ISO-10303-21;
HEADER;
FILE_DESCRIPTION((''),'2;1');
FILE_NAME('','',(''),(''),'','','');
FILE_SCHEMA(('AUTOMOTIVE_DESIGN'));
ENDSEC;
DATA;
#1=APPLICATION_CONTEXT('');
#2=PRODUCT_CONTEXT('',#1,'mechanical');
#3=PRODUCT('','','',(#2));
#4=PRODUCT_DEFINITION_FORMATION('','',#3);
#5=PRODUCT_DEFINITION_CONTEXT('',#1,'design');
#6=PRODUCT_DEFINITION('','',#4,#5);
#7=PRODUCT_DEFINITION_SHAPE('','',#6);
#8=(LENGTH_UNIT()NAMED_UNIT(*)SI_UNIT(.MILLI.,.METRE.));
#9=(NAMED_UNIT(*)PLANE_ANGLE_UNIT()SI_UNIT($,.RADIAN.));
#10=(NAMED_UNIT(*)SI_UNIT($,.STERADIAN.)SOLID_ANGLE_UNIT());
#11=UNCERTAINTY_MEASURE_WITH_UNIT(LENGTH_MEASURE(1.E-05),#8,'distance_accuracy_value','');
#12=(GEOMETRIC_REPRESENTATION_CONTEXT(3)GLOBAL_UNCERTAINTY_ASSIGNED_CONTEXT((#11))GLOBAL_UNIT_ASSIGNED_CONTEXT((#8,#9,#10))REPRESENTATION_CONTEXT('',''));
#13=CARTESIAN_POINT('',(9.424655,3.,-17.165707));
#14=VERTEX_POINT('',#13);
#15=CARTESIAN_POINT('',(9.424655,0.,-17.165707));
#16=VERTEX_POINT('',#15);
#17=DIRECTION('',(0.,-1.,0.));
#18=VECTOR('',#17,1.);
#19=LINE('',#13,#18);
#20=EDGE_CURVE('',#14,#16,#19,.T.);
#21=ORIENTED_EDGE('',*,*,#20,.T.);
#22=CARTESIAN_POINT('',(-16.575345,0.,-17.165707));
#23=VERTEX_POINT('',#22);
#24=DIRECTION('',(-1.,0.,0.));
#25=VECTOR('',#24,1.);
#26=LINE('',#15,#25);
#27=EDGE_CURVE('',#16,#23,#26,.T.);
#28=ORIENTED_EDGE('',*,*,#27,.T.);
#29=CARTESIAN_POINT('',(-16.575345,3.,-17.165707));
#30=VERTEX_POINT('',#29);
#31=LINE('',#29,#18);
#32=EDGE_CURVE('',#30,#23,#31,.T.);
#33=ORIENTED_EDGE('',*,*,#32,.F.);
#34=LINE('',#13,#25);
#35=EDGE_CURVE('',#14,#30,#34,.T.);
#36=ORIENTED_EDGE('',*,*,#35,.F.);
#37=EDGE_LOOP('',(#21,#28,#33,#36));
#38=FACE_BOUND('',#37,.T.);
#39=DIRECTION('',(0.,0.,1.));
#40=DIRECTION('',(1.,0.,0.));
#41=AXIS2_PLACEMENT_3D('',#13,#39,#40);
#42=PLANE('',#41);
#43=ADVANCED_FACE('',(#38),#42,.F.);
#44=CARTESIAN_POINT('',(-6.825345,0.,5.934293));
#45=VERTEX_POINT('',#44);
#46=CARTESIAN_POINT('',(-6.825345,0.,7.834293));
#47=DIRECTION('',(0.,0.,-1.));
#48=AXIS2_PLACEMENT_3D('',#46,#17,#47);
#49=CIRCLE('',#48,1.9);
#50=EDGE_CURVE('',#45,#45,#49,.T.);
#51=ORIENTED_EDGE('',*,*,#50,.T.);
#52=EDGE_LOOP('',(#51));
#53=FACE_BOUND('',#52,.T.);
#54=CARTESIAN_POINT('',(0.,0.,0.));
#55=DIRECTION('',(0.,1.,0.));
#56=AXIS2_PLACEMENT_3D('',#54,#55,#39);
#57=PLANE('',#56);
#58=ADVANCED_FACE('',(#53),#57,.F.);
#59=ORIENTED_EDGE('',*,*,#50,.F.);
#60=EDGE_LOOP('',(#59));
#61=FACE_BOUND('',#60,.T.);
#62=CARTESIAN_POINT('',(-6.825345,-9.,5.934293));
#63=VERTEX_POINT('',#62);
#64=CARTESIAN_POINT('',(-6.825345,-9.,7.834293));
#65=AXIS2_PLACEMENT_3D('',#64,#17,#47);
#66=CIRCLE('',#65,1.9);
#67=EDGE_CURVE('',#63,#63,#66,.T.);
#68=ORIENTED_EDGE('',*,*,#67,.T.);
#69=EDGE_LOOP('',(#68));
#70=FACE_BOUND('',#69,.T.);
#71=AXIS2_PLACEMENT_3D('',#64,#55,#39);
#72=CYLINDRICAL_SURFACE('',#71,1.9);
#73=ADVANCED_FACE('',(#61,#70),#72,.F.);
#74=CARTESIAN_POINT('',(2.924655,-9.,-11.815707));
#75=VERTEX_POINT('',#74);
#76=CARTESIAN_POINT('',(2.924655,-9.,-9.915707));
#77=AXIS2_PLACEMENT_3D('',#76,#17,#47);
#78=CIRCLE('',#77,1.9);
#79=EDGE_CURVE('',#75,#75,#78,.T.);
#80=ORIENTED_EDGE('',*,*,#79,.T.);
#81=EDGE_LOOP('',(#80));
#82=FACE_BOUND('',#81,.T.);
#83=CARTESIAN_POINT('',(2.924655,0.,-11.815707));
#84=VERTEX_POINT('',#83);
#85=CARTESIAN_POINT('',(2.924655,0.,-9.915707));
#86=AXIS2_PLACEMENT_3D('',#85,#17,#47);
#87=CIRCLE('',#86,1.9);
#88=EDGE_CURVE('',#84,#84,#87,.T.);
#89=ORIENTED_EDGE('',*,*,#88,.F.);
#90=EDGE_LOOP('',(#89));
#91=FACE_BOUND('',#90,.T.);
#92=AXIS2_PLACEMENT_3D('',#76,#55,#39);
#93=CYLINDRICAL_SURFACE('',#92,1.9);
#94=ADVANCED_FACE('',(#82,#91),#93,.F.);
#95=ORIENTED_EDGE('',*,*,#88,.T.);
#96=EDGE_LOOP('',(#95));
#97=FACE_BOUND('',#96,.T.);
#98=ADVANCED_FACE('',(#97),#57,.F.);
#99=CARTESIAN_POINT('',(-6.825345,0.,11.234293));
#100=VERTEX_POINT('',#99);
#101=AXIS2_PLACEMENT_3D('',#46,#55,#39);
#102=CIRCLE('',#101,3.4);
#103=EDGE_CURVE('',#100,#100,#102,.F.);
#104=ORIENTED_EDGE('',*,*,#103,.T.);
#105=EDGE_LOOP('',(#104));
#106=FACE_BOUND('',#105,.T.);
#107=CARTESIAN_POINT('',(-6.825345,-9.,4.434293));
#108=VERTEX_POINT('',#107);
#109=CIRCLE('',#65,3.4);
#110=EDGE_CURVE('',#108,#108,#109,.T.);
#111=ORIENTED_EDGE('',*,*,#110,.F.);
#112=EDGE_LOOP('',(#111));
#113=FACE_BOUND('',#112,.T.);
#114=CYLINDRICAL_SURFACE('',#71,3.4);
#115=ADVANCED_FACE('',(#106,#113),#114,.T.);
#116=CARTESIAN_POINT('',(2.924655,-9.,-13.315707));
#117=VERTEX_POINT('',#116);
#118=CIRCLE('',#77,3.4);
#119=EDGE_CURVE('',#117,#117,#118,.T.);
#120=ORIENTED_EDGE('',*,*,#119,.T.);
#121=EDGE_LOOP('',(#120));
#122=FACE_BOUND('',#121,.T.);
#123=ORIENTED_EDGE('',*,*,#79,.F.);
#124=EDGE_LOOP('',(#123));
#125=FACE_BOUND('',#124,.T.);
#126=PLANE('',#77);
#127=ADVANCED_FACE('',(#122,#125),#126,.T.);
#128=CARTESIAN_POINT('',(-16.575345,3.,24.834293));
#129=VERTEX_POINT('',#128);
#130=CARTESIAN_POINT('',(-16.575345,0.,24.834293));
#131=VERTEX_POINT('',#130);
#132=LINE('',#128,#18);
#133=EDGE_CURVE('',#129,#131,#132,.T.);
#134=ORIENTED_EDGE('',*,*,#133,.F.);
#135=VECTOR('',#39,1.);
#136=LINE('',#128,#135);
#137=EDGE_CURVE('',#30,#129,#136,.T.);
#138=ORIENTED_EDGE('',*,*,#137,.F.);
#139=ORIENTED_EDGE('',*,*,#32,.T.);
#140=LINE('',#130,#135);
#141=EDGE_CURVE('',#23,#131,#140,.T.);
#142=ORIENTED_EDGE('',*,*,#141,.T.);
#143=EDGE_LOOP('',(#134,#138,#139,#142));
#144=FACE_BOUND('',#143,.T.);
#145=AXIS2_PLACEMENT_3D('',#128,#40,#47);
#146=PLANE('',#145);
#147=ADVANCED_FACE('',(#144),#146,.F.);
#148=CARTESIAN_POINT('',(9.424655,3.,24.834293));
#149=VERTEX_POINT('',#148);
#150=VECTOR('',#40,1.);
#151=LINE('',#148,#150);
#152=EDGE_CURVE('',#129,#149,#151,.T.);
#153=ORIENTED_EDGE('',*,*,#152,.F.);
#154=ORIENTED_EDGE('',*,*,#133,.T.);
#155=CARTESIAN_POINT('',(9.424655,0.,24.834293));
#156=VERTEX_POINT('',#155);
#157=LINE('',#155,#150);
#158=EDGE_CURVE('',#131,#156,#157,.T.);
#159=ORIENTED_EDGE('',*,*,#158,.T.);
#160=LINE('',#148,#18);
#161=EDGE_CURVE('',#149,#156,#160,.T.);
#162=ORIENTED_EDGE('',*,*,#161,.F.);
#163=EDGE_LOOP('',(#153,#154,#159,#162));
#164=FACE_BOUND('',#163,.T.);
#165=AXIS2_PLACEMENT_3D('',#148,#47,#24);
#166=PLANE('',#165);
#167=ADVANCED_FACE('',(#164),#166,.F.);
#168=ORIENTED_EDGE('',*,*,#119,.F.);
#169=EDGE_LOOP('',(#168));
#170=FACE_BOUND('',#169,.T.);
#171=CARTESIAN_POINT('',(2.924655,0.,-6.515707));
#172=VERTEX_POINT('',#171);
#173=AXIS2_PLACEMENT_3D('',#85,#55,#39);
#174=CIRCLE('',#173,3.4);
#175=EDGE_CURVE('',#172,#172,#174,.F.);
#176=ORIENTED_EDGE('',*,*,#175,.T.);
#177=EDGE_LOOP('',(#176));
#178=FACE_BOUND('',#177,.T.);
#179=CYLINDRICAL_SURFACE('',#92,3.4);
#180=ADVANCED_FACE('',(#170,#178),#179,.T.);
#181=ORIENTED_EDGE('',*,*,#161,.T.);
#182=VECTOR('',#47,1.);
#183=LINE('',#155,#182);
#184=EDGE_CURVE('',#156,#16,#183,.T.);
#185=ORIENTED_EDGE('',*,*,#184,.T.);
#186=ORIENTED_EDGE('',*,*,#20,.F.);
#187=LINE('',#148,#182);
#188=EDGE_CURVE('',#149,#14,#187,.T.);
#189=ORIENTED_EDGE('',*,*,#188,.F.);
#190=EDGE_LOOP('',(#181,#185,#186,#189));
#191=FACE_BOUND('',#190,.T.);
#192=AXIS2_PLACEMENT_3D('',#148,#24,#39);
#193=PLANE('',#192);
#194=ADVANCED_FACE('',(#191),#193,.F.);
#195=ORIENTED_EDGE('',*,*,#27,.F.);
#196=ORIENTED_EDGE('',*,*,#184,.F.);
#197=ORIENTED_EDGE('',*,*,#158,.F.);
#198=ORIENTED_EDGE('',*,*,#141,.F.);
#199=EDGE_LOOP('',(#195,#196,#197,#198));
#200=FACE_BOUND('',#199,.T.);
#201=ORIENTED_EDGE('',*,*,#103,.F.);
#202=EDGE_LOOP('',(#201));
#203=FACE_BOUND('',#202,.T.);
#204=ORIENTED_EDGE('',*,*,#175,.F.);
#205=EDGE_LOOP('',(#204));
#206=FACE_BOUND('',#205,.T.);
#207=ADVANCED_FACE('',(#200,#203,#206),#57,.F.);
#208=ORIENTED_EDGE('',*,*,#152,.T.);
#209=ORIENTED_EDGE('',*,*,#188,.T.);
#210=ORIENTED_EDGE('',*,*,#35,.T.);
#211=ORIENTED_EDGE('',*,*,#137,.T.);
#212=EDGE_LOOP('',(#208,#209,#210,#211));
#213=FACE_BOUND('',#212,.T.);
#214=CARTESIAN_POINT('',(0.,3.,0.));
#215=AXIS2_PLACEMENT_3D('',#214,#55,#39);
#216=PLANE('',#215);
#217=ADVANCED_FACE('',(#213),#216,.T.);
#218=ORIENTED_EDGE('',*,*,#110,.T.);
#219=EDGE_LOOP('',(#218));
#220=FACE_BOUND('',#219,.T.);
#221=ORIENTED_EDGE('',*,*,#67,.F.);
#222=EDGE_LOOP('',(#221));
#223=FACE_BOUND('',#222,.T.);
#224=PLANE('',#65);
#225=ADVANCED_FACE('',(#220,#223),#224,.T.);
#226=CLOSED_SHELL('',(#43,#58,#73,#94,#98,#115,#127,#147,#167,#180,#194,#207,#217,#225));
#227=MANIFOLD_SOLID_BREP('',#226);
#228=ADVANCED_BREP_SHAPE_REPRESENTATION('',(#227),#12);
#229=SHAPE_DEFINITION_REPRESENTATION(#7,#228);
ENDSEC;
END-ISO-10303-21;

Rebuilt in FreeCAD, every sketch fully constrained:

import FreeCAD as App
import Part
import Sketcher
from FreeCAD import Vector
Q = App.Units.Quantity

doc = App.newDocument("Part")
params = doc.addObject("Spreadsheet::Sheet", "Params")
for row, (alias, value) in enumerate([
    ("sketch1_width", "26 mm"),
    ("sketch1_height", "42 mm"),
    ("pad1_length", "3 mm"),
    ("sketch2_diameter", "6.8 mm"),
    ("sketch2_diameter2", "3.8 mm"),
    ("pad2_length", "9 mm"),
], start=1):
    params.set(f"A{row}", alias)
    params.set(f"B{row}", "=" + value)
    params.setAlias(f"B{row}", alias)

body = doc.addObject("PartDesign::Body", "Body")

# Sketch on XZ plane
sketch1 = body.newObject("Sketcher::SketchObject", "Sketch")
sketch1.AttachmentSupport = (doc.getObject("XZ_Plane"), [""])
sketch1.MapMode = "FlatFace"
sketch1.addGeometry([
    Part.LineSegment(Vector(-17, -17, 0), Vector(-17, 25, 0)),
    Part.LineSegment(Vector(-17, 25, 0), Vector(9, 25, 0)),
    Part.LineSegment(Vector(9, 25, 0), Vector(9, -17, 0)),
    Part.LineSegment(Vector(9, -17, 0), Vector(-17, -17, 0)),
], False)
sketch1.addConstraint([
    Sketcher.Constraint("Coincident", 0, 2, 1, 1),
    Sketcher.Constraint("Coincident", 1, 2, 2, 1),
    Sketcher.Constraint("Coincident", 2, 2, 3, 1),
    Sketcher.Constraint("Coincident", 3, 2, 0, 1),
    Sketcher.Constraint("Vertical", 0),
    Sketcher.Constraint("Horizontal", 1),
    Sketcher.Constraint("Vertical", 2),
    Sketcher.Constraint("Horizontal", 3),
    Sketcher.Constraint("DistanceX", 1, 1, 1, 2, Q("26 mm")),
    Sketcher.Constraint("DistanceY", 0, 1, 0, 2, Q("42 mm")),
    Sketcher.Constraint("DistanceX", 0, 2, -1, 1, Q("16.575345 mm")),
    Sketcher.Constraint("DistanceY", -1, 1, 0, 2, Q("24.834293 mm")),
])
sketch1.setExpression("Constraints[8]", "Params.sketch1_width")
sketch1.setExpression("Constraints[9]", "Params.sketch1_height")
pad1 = body.newObject("PartDesign::Pad", "Pad")
pad1.Profile = sketch1
pad1.setExpression("Length", "Params.pad1_length")
pad1.Reversed = True

# Sketch on XZ plane
sketch2 = body.newObject("Sketcher::SketchObject", "Sketch001")
sketch2.AttachmentSupport = (doc.getObject("XZ_Plane"), [""])
sketch2.MapMode = "FlatFace"
sketch2.addGeometry([
    Part.Circle(Vector(-6.8, 7.8, 0), Vector(0, 0, 1), 3.4),
    Part.Circle(Vector(-6.8, 7.8, 0), Vector(0, 0, 1), 1.9),
    Part.Circle(Vector(2.9, -9.9, 0), Vector(0, 0, 1), 3.4),
    Part.Circle(Vector(2.9, -9.9, 0), Vector(0, 0, 1), 1.9),
], False)
sketch2.addConstraint([
    Sketcher.Constraint("Coincident", 1, 3, 0, 3),
    Sketcher.Constraint("Coincident", 3, 3, 2, 3),
    Sketcher.Constraint("Equal", 0, 2),
    Sketcher.Constraint("Equal", 1, 3),
    Sketcher.Constraint("Diameter", 0, Q("6.8 mm")),
    Sketcher.Constraint("Diameter", 1, Q("3.8 mm")),
    Sketcher.Constraint("DistanceX", 0, 3, 2, 3, Q("9.75 mm")),
    Sketcher.Constraint("DistanceY", 2, 3, 0, 3, Q("17.75 mm")),
    Sketcher.Constraint("DistanceX", 0, 3, -1, 1, Q("6.825345 mm")),
    Sketcher.Constraint("DistanceY", -1, 1, 0, 3, Q("7.834293 mm")),
])
sketch2.setExpression("Constraints[4]", "Params.sketch2_diameter")
sketch2.setExpression("Constraints[5]", "Params.sketch2_diameter2")
pad2 = body.newObject("PartDesign::Pad", "Pad001")
pad2.Profile = sketch2
pad2.setExpression("Length", "Params.pad2_length")

doc.recompute()
